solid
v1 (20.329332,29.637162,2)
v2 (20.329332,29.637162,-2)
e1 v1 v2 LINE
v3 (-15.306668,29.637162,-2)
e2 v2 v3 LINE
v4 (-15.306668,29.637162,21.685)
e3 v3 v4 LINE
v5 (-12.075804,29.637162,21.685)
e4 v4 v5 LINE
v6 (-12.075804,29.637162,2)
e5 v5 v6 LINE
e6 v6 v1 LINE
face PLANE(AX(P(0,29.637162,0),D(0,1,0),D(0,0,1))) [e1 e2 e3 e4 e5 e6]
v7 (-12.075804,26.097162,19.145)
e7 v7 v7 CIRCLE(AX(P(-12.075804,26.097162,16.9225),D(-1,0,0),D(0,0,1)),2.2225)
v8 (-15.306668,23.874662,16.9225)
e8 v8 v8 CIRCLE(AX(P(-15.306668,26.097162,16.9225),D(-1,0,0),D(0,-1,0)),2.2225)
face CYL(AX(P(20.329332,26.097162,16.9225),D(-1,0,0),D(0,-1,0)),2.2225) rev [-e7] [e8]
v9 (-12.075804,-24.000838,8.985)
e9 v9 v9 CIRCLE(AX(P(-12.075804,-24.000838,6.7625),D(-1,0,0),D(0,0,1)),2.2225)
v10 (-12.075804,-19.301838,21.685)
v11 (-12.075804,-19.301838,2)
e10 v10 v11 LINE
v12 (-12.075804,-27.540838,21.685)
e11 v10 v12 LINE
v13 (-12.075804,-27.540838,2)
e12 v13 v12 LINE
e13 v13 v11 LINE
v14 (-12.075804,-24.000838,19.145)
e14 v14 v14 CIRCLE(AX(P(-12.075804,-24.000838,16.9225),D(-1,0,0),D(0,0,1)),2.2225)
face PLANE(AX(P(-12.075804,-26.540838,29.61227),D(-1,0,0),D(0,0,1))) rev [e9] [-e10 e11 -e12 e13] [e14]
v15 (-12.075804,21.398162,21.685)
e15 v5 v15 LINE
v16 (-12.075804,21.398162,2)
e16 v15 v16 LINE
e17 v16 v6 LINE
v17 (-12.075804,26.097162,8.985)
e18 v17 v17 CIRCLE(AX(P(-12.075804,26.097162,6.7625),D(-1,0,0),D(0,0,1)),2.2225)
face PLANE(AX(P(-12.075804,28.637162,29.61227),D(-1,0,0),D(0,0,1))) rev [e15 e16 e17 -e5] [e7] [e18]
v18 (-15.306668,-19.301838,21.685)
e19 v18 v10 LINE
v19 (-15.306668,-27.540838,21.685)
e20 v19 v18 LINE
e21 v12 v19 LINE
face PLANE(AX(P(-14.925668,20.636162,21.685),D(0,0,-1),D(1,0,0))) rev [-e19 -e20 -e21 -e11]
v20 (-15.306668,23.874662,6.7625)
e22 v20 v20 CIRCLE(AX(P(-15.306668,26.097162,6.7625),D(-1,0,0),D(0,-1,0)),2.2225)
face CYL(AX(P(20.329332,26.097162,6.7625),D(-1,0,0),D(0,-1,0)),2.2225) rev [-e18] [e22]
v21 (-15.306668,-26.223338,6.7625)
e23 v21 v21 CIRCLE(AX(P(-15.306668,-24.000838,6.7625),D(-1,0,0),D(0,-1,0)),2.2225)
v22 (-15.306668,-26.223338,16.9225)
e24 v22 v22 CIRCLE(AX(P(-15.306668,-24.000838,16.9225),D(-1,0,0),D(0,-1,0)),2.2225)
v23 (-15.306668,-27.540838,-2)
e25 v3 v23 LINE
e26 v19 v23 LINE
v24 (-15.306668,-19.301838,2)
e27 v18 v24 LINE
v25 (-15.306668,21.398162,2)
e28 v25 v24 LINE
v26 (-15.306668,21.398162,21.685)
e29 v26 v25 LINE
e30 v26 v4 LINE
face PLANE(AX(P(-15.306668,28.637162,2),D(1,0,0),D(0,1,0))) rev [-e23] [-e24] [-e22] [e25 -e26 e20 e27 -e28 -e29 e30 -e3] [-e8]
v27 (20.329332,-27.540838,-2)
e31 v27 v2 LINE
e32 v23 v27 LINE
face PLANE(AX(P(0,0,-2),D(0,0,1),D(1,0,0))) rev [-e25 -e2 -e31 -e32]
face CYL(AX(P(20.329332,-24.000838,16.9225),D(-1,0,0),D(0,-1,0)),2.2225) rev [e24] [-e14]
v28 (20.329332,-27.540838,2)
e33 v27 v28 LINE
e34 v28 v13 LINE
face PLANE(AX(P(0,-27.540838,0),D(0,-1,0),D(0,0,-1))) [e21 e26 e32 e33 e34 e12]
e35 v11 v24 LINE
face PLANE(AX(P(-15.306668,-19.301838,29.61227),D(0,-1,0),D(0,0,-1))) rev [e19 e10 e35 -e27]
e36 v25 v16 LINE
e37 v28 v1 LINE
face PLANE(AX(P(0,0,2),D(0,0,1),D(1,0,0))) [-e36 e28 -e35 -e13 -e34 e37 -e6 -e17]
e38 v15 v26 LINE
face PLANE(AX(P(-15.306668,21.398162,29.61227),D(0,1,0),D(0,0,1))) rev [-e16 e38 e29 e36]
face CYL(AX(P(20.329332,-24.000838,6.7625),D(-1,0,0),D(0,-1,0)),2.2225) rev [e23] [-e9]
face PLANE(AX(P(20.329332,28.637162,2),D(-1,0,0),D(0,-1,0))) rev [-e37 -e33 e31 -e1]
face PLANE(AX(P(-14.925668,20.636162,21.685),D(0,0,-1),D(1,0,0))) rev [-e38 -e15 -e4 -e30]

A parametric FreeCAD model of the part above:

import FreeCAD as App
import Part
import Sketcher
Q = App.Units.Quantity

doc = App.newDocument("Part")
params = doc.addObject("Spreadsheet::Sheet", "Params")
for row, (alias, value) in enumerate([
    ("pad1_length", "4 mm"),
    ("pad2_length", "19.685 mm"),
    ("sketch4_height", "4 mm"),
    ("pad3_length", "1 mm"),
    ("sketch5_height", "4 mm"),
    ("pad4_length", "1 mm"),
], start=1):
    params.set(f"A{row}", alias)
    params.set(f"B{row}", "=" + value)
    params.setAlias(f"B{row}", alias)

body = doc.addObject("PartDesign::Body", "Body")

# Sketch on XY plane
sketch1 = doc.addObject("Sketcher::SketchObject", "Sketch")
body.addObject(sketch1)
sketch1.AttachmentSupport = (doc.XY_Plane, [""])
sketch1.MapMode = "FlatFace"
sketch1.addGeometry(Part.LineSegment(App.Vector(-15, 29, 0), App.Vector(-15, -27, 0)), False)
sketch1.addGeometry(Part.LineSegment(App.Vector(-15, -27, 0), App.Vector(20, -27, 0)), False)
sketch1.addGeometry(Part.LineSegment(App.Vector(20, -27, 0), App.Vector(20, 29, 0)), False)
sketch1.addGeometry(Part.LineSegment(App.Vector(20, 29, 0), App.Vector(-15, 29, 0)), False)
sketch1.addConstraint(Sketcher.Constraint("Coincident", 0, 2, 1, 1))
sketch1.addConstraint(Sketcher.Constraint("Coincident", 1, 2, 2, 1))
sketch1.addConstraint(Sketcher.Constraint("Coincident", 2, 2, 3, 1))
sketch1.addConstraint(Sketcher.Constraint("Coincident", 3, 2, 0, 1))
sketch1.addConstraint(Sketcher.Constraint("Vertical", 0))
sketch1.addConstraint(Sketcher.Constraint("Horizontal", 1))
sketch1.addConstraint(Sketcher.Constraint("Vertical", 2))
sketch1.addConstraint(Sketcher.Constraint("Horizontal", 3))
sketch1.addConstraint(Sketcher.Constraint("DistanceX", 1, 1, 1, 2, Q("35.636 mm")))
sketch1.addConstraint(Sketcher.Constraint("DistanceY", 0, 2, 0, 1, Q("55.178 mm")))
sketch1.addConstraint(Sketcher.Constraint("DistanceX", 0, 2, -1, 1, Q("15.306668 mm")))
sketch1.addConstraint(Sketcher.Constraint("DistanceY", 0, 2, -1, 1, Q("26.540838 mm")))
pad1 = doc.addObject("PartDesign::Pad", "Pad")
body.addObject(pad1)
pad1.Profile = sketch1
pad1.setExpression("Length", "Params.pad1_length")
pad1.Midplane = True

# Sketch on XY plane
sketch2 = doc.addObject("Sketcher::SketchObject", "Sketch001")
body.addObject(sketch2)
sketch2.AttachmentSupport = (doc.XY_Plane, [""])
sketch2.MapMode = "FlatFace"
sketch2.AttachmentOffset = App.Placement(App.Vector(0, 0, 2), App.Rotation())
sketch2.addGeometry(Part.LineSegment(App.Vector(-15.3, 28.6, 0), App.Vector(-15.3, 21.4, 0)), False)
sketch2.addGeometry(Part.LineSegment(App.Vector(-15.3, 21.4, 0), App.Vector(-12.1, 21.4, 0)), False)
sketch2.addGeometry(Part.LineSegment(App.Vector(-12.1, 21.4, 0), App.Vector(-12.1, 28.6, 0)), False)
sketch2.addGeometry(Part.LineSegment(App.Vector(-12.1, 28.6, 0), App.Vector(-15.3, 28.6, 0)), False)
sketch2.addGeometry(Part.LineSegment(App.Vector(-15.3, -19.3, 0), App.Vector(-15.3, -26.5, 0)), False)
sketch2.addGeometry(Part.LineSegment(App.Vector(-15.3, -26.5, 0), App.Vector(-12.1, -26.5, 0)), False)
sketch2.addGeometry(Part.LineSegment(App.Vector(-12.1, -26.5, 0), App.Vector(-12.1, -19.3, 0)), False)
sketch2.addGeometry(Part.LineSegment(App.Vector(-12.1, -19.3, 0), App.Vector(-15.3, -19.3, 0)), False)
sketch2.addConstraint(Sketcher.Constraint("Coincident", 0, 2, 1, 1))
sketch2.addConstraint(Sketcher.Constraint("Coincident", 1, 2, 2, 1))
sketch2.addConstraint(Sketcher.Constraint("Coincident", 2, 2, 3, 1))
sketch2.addConstraint(Sketcher.Constraint("Coincident", 3, 2, 0, 1))
sketch2.addConstraint(Sketcher.Constraint("Coincident", 4, 2, 5, 1))
sketch2.addConstraint(Sketcher.Constraint("Coincident", 5, 2, 6, 1))
sketch2.addConstraint(Sketcher.Constraint("Coincident", 6, 2, 7, 1))
sketch2.addConstraint(Sketcher.Constraint("Coincident", 7, 2, 4, 1))
sketch2.addConstraint(Sketcher.Constraint("Vertical", 0))
sketch2.addConstraint(Sketcher.Constraint("Horizontal", 1))
sketch2.addConstraint(Sketcher.Constraint("Vertical", 2))
sketch2.addConstraint(Sketcher.Constraint("Horizontal", 3))
sketch2.addConstraint(Sketcher.Constraint("Vertical", 4))
sketch2.addConstraint(Sketcher.Constraint("Horizontal", 5))
sketch2.addConstraint(Sketcher.Constraint("Vertical", 6))
sketch2.addConstraint(Sketcher.Constraint("Horizontal", 7))
sketch2.addConstraint(Sketcher.Constraint("Vertical", 3, 2, 4, 2))
sketch2.addConstraint(Sketcher.Constraint("Vertical", 2, 2, 5, 2))
sketch2.addConstraint(Sketcher.Constraint("Equal", 2, 4))
sketch2.addConstraint(Sketcher.Constraint("DistanceY", 6, 2, 1, 2, Q("40.7 mm")))
sketch2.addConstraint(Sketcher.Constraint("DistanceY", 0, 2, 0, 1, Q("7.239 mm")))
sketch2.addConstraint(Sketcher.Constraint("DistanceX", 1, 1, 1, 2, Q("3.230864 mm")))
sketch2.addConstraint(Sketcher.Constraint("DistanceX", 0, 2, -1, 1, Q("15.306668 mm")))
sketch2.addConstraint(Sketcher.Constraint("DistanceY", -1, 1, 0, 2, Q("21.398162 mm")))
pad2 = doc.addObject("PartDesign::Pad", "Pad001")
body.addObject(pad2)
pad2.Profile = sketch2
pad2.setExpression("Length", "Params.pad2_length")

# Sketch on YZ plane
sketch3 = doc.addObject("Sketcher::SketchObject", "Sketch002")
body.addObject(sketch3)
sketch3.AttachmentSupport = (doc.YZ_Plane, [""])
sketch3.MapMode = "FlatFace"
sketch3.AttachmentOffset = App.Placement(App.Vector(0, 0, -15.306668), App.Rotation())
sketch3.addGeometry(Part.Circle(App.Vector(26.1, 16.9, 0), App.Vector(0, 0, 1), 2.2), False)
sketch3.addGeometry(Part.Circle(App.Vector(-24, 16.9, 0), App.Vector(0, 0, 1), 2.2), False)
sketch3.addGeometry(Part.Circle(App.Vector(26.1, 6.8, 0), App.Vector(0, 0, 1), 2.2), False)
sketch3.addGeometry(Part.Circle(App.Vector(-24, 6.8, 0), App.Vector(0, 0, 1), 2.2), False)
sketch3.addConstraint(Sketcher.Constraint("Equal", 0, 1))
sketch3.addConstraint(Sketcher.Constraint("Equal", 1, 2))
sketch3.addConstraint(Sketcher.Constraint("Equal", 2, 3))
sketch3.addConstraint(Sketcher.Constraint("Horizontal", 0, 3, 1, 3))
sketch3.addConstraint(Sketcher.Constraint("Horizontal", 2, 3, 3, 3))
sketch3.addConstraint(Sketcher.Constraint("Vertical", 0, 3, 2, 3))
sketch3.addConstraint(Sketcher.Constraint("Vertical", 1, 3, 3, 3))
sketch3.addConstraint(Sketcher.Constraint("Diameter", 0, Q("4.445 mm")))
sketch3.addConstraint(Sketcher.Constraint("DistanceY", 2, 3, 0, 3, Q("10.16 mm")))
sketch3.addConstraint(Sketcher.Constraint("DistanceX", 1, 3, 0, 3, Q("50.098 mm")))
sketch3.addConstraint(Sketcher.Constraint("DistanceY", -1, 1, 0, 3, Q("16.9225 mm")))
sketch3.addConstraint(Sketcher.Constraint("DistanceX", -1, 1, 0, 3, Q("26.097162 mm")))
pocket1 = doc.addObject("PartDesign::Pocket", "Pocket")
body.addObject(pocket1)
pocket1.Profile = sketch3
pocket1.Type = "ThroughAll"
pocket1.Reversed = True

# Sketch on XZ plane
sketch4 = doc.addObject("Sketcher::SketchObject", "Sketch003")
body.addObject(sketch4)
sketch4.AttachmentSupport = (doc.XZ_Plane, [""])
sketch4.MapMode = "FlatFace"
sketch4.AttachmentOffset = App.Placement(App.Vector(0, 0, 26.540838), App.Rotation())
sketch4.addGeometry(Part.LineSegment(App.Vector(-15.3, -2, 0), App.Vector(20.3, -2, 0)), False)
sketch4.addGeometry(Part.LineSegment(App.Vector(20.3, -2, 0), App.Vector(20.3, 2, 0)), False)
sketch4.addGeometry(Part.LineSegment(App.Vector(20.3, 2, 0), App.Vector(-12.1, 2, 0)), False)
sketch4.addGeometry(Part.LineSegment(App.Vector(-12.1, 2, 0), App.Vector(-12.1, 21.7, 0)), False)
sketch4.addGeometry(Part.LineSegment(App.Vector(-12.1, 21.7, 0), App.Vector(-15.3, 21.7, 0)), False)
sketch4.addGeometry(Part.LineSegment(App.Vector(-15.3, 21.7, 0), App.Vector(-15.3, -2, 0)), False)
sketch4.addConstraint(Sketcher.Constraint("Coincident", 0, 2, 1, 1))
sketch4.addConstraint(Sketcher.Constraint("Coincident", 1, 2, 2, 1))
sketch4.addConstraint(Sketcher.Constraint("Coincident", 2, 2, 3, 1))
sketch4.addConstraint(Sketcher.Constraint("Coincident", 3, 2, 4, 1))
sketch4.addConstraint(Sketcher.Constraint("Coincident", 4, 2, 5, 1))
sketch4.addConstraint(Sketcher.Constraint("Coincident", 5, 2, 0, 1))
sketch4.addConstraint(Sketcher.Constraint("Horizontal", 0))
sketch4.addConstraint(Sketcher.Constraint("Vertical", 1))
sketch4.addConstraint(Sketcher.Constraint("Horizontal", 2))
sketch4.addConstraint(Sketcher.Constraint("Vertical", 3))
sketch4.addConstraint(Sketcher.Constraint("Horizontal", 4))
sketch4.addConstraint(Sketcher.Constraint("Vertical", 5))
sketch4.addConstraint(Sketcher.Constraint("DistanceY", 1, 1, 1, 2, Q("4 mm")))
sketch4.addConstraint(Sketcher.Constraint("DistanceY", 0, 2, -1, 1, Q("2 mm")))
sketch4.addConstraint(Sketcher.Constraint("DistanceX", 0, 1, 0, 2, Q("35.636 mm")))
sketch4.addConstraint(Sketcher.Constraint("DistanceY", 3, 1, 3, 2, Q("19.685 mm")))
sketch4.addConstraint(Sketcher.Constraint("DistanceX", 2, 2, 2, 1, Q("32.405136 mm")))
sketch4.addConstraint(Sketcher.Constraint("DistanceX", -1, 1, 0, 2, Q("20.329332 mm")))
sketch4.setExpression("Constraints[12]", "Params.sketch4_height")
pad3 = doc.addObject("PartDesign::Pad", "Pad002")
body.addObject(pad3)
pad3.Profile = sketch4
pad3.setExpression("Length", "Params.pad3_length")

# Sketch on XZ plane
sketch5 = doc.addObject("Sketcher::SketchObject", "Sketch004")
body.addObject(sketch5)
sketch5.AttachmentSupport = (doc.XZ_Plane, [""])
sketch5.MapMode = "FlatFace"
sketch5.AttachmentOffset = App.Placement(App.Vector(0, 0, -28.637162), App.Rotation())
sketch5.addGeometry(Part.LineSegment(App.Vector(20.3, -2, 0), App.Vector(-15.3, -2, 0)), False)
sketch5.addGeometry(Part.LineSegment(App.Vector(-15.3, -2, 0), App.Vector(-15.3, 21.7, 0)), False)
sketch5.addGeometry(Part.LineSegment(App.Vector(-15.3, 21.7, 0), App.Vector(-12.1, 21.7, 0)), False)
sketch5.addGeometry(Part.LineSegment(App.Vector(-12.1, 21.7, 0), App.Vector(-12.1, 2, 0)), False)
sketch5.addGeometry(Part.LineSegment(App.Vector(-12.1, 2, 0), App.Vector(20.3, 2, 0)), False)
sketch5.addGeometry(Part.LineSegment(App.Vector(20.3, 2, 0), App.Vector(20.3, -2, 0)), False)
sketch5.addConstraint(Sketcher.Constraint("Coincident", 0, 2, 1, 1))
sketch5.addConstraint(Sketcher.Constraint("Coincident", 1, 2, 2, 1))
sketch5.addConstraint(Sketcher.Constraint("Coincident", 2, 2, 3, 1))
sketch5.addConstraint(Sketcher.Constraint("Coincident", 3, 2, 4, 1))
sketch5.addConstraint(Sketcher.Constraint("Coincident", 4, 2, 5, 1))
sketch5.addConstraint(Sketcher.Constraint("Coincident", 5, 2, 0, 1))
sketch5.addConstraint(Sketcher.Constraint("Horizontal", 0))
sketch5.addConstraint(Sketcher.Constraint("Vertical", 1))
sketch5.addConstraint(Sketcher.Constraint("Horizontal", 2))
sketch5.addConstraint(Sketcher.Constraint("Vertical", 3))
sketch5.addConstraint(Sketcher.Constraint("Horizontal", 4))
sketch5.addConstraint(Sketcher.Constraint("Vertical", 5))
sketch5.addConstraint(Sketcher.Constraint("DistanceY", 5, 2, 5, 1, Q("4 mm")))
sketch5.addConstraint(Sketcher.Constraint("DistanceY", 0, 2, -1, 1, Q("2 mm")))
sketch5.addConstraint(Sketcher.Constraint("DistanceX", 0, 2, 0, 1, Q("35.636 mm")))
sketch5.addConstraint(Sketcher.Constraint("DistanceY", 1, 1, 1, 2, Q("23.685 mm")))
sketch5.addConstraint(Sketcher.Constraint("DistanceX", 2, 1, 2, 2, Q("3.230864 mm")))
sketch5.addConstraint(Sketcher.Constraint("DistanceX", 0, 2, -1, 1, Q("15.306668 mm")))
sketch5.setExpression("Constraints[12]", "Params.sketch5_height")
pad4 = doc.addObject("PartDesign::Pad", "Pad003")
body.addObject(pad4)
pad4.Profile = sketch5
pad4.setExpression("Length", "Params.pad4_length")
pad4.Reversed = True

doc.recompute()
